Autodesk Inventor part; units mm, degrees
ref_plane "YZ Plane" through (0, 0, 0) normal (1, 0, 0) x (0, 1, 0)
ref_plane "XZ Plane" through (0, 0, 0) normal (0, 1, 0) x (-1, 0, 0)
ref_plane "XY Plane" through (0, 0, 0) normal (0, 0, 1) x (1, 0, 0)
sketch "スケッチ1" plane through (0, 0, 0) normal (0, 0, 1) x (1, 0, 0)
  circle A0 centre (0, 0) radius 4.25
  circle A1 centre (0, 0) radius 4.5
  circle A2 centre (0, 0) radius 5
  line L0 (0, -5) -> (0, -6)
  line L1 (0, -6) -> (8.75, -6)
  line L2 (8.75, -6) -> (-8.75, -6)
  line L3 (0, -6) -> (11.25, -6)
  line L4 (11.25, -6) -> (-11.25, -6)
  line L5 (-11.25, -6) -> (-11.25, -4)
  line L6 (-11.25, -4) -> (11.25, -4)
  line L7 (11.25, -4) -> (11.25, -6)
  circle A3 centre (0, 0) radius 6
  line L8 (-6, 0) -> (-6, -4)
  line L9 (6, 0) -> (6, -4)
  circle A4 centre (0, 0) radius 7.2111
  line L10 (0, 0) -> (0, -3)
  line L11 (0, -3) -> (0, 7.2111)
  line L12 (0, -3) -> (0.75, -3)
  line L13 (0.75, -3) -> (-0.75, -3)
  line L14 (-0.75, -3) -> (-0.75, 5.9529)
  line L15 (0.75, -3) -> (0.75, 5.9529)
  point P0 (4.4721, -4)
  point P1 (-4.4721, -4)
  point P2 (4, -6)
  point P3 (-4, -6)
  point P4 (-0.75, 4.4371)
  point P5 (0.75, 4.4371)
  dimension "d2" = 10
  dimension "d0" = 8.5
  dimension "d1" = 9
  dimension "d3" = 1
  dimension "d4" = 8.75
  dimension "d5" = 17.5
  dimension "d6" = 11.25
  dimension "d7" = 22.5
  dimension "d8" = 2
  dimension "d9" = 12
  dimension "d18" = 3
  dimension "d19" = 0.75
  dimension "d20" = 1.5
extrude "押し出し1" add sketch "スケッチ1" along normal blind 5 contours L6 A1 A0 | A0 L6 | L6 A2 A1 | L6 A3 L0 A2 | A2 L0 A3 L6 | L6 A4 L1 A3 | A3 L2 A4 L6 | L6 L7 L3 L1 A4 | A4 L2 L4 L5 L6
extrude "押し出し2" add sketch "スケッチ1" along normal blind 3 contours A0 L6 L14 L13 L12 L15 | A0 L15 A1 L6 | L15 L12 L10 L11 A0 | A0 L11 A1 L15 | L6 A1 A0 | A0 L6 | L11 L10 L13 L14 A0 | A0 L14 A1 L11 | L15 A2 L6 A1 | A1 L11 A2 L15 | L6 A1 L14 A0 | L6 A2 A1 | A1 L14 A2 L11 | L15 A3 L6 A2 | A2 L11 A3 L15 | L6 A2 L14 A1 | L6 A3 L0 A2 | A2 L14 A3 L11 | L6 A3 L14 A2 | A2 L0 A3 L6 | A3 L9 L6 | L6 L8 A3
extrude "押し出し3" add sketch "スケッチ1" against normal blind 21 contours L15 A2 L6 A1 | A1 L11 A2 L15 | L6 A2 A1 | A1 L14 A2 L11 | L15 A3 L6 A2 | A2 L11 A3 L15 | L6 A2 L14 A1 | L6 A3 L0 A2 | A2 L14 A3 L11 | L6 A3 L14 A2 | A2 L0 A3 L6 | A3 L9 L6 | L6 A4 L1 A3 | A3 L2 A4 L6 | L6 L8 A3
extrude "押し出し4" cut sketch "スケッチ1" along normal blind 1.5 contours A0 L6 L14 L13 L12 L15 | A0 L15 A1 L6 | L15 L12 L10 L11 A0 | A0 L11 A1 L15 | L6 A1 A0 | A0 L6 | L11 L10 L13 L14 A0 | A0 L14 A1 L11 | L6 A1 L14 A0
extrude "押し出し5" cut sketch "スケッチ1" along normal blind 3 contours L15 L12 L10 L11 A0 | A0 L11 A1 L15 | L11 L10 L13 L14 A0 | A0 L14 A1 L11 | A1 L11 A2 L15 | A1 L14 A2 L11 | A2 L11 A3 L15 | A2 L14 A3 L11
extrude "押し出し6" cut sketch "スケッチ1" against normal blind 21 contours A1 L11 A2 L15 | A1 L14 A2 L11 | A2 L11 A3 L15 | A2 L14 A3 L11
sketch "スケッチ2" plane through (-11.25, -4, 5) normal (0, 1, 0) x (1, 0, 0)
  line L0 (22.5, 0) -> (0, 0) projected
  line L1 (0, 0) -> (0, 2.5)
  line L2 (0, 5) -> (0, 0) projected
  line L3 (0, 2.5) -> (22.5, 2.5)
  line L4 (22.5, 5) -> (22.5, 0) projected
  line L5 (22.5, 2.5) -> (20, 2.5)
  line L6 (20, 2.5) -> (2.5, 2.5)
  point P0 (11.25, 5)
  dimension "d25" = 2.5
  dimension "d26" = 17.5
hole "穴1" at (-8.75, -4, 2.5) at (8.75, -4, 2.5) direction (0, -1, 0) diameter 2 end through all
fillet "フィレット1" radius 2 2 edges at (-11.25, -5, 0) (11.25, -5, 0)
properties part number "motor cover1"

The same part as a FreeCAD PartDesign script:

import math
import FreeCAD as App
import Part
import Sketcher

V = App.Vector
Q = App.Units.Quantity


def edges_at(feature, points):
    """Names of the edges that pass closest to the given points."""
    edges = feature.Shape.Edges
    near = lambda p: min(range(len(edges)), key=lambda i: edges[i].distToShape(Part.Vertex(*p))[0])
    return sorted({f"Edge{near(p) + 1}" for p in points})

doc = App.newDocument("Part")
body = doc.addObject("PartDesign::Body", "Body")

# Sketch on XY plane
sketch1 = body.newObject("Sketcher::SketchObject", "Sketch")
sketch1.AttachmentSupport = (doc.getObject("XY_Plane"), [""])
sketch1.MapMode = "FlatFace"
sketch1.addGeometry([
    Part.LineSegment(V(-11.25, -4, 0), V(-11.25, -6, 0)),
    Part.LineSegment(V(-11.25, -6, 0), V(11.25, -6, 0)),
    Part.LineSegment(V(11.25, -6, 0), V(11.25, -4, 0)),
    Part.LineSegment(V(11.25, -4, 0), V(-11.25, -4, 0)),
], False)
sketch1.addConstraint([
    Sketcher.Constraint("Coincident", 0, 2, 1, 1),
    Sketcher.Constraint("Coincident", 1, 2, 2, 1),
    Sketcher.Constraint("Coincident", 2, 2, 3, 1),
    Sketcher.Constraint("Coincident", 3, 2, 0, 1),
    Sketcher.Constraint("Vertical", 0),
    Sketcher.Constraint("Horizontal", 1),
    Sketcher.Constraint("Vertical", 2),
    Sketcher.Constraint("Horizontal", 3),
    Sketcher.Constraint("DistanceY", 0, 2, 0, 1, Q("2 mm")),
    Sketcher.Constraint("DistanceX", 1, 1, 1, 2, Q("22.5 mm")),
    Sketcher.Constraint("DistanceX", 0, 2, -1, 1, Q("11.25 mm")),
    Sketcher.Constraint("DistanceY", 0, 2, -1, 1, Q("6 mm")),
])
pad1 = body.newObject("PartDesign::Pad", "Pad")
pad1.Profile = sketch1
pad1.Length = 5

# Sketch on XY plane
sketch2 = body.newObject("Sketcher::SketchObject", "Sketch001")
sketch2.AttachmentSupport = (doc.getObject("XY_Plane"), [""])
sketch2.MapMode = "FlatFace"
sketch2.addGeometry([
    Part.ArcOfCircle(Part.Circle(V(0, 0, 0), V(0, 0, 1), 6), math.radians(0), math.radians(180)),  # 0
    Part.LineSegment(V(-6, 0, 0), V(-6, -4, 0)),  # 1
    Part.LineSegment(V(-6, -4, 0), V(-4.472136, -4, 0)),  # 2
    Part.ArcOfCircle(Part.Circle(V(0, 0, 0), V(0, 0, 1), 6), math.radians(-138.189685), math.radians(-41.810315)),  # 3
    Part.LineSegment(V(4.472136, -4, 0), V(6, -4, 0)),  # 4
    Part.LineSegment(V(6, -4, 0), V(6, 0, 0)),  # 5
], False)
sketch2.addConstraint([
    Sketcher.Constraint("Tangent", 0, 2, 1, 1),
    Sketcher.Constraint("Coincident", 1, 2, 2, 1),
    Sketcher.Constraint("Coincident", 2, 2, 3, 1),
    Sketcher.Constraint("Coincident", 3, 2, 4, 1),
    Sketcher.Constraint("Coincident", 4, 2, 5, 1),
    Sketcher.Constraint("Tangent", 5, 2, 0, 1),
    Sketcher.Constraint("Vertical", 1),
    Sketcher.Constraint("Horizontal", 2),
    Sketcher.Constraint("Horizontal", 4),
    Sketcher.Constraint("Vertical", 5),
    Sketcher.Constraint("Coincident", 0, 3, -1, 1),
    Sketcher.Constraint("Coincident", 3, 3, -1, 1),
    Sketcher.Constraint("Equal", 0, 3),
    Sketcher.Constraint("Horizontal", 2, 2, 3, 2),
    Sketcher.Constraint("Radius", 0, Q("6 mm")),
    Sketcher.Constraint("DistanceY", 1, 2, 1, 1, Q("4 mm")),
])
pad2 = body.newObject("PartDesign::Pad", "Pad001")
pad2.Profile = sketch2
pad2.Length = 3

# Sketch on XY plane
sketch3 = body.newObject("Sketcher::SketchObject", "Sketch002")
sketch3.AttachmentSupport = (doc.getObject("XY_Plane"), [""])
sketch3.MapMode = "FlatFace"
sketch3.addGeometry([
    Part.ArcOfCircle(Part.Circle(V(0, 0, 0), V(0, 0, 1), 6), math.radians(0), math.radians(180)),  # 0
    Part.LineSegment(V(-6, 0, 0), V(-6, -4, 0)),  # 1
    Part.ArcOfCircle(Part.Circle(V(0, 0, 0), V(0, 0, 1), 7.2111), math.radians(-146.309932), math.radians(-123.690037)),  # 2
    Part.LineSegment(V(-3.999995, -6, 0), V(3.999995, -6, 0)),  # 3
    Part.ArcOfCircle(Part.Circle(V(0, 0, 0), V(0, 0, 1), 7.2111), math.radians(-56.309963), math.radians(-33.690068)),  # 4
    Part.LineSegment(V(6, -4, 0), V(6, 0, 0)),  # 5
    Part.Circle(V(0, 0, 0), V(0, 0, 1), 4.5),  # 6
], False)
sketch3.addConstraint([
    Sketcher.Constraint("Tangent", 0, 2, 1, 1),
    Sketcher.Constraint("Coincident", 1, 2, 2, 1),
    Sketcher.Constraint("Coincident", 2, 2, 3, 1),
    Sketcher.Constraint("Coincident", 3, 2, 4, 1),
    Sketcher.Constraint("Coincident", 4, 2, 5, 1),
    Sketcher.Constraint("Tangent", 5, 2, 0, 1),
    Sketcher.Constraint("Vertical", 1),
    Sketcher.Constraint("Horizontal", 3),
    Sketcher.Constraint("Vertical", 5),
    Sketcher.Constraint("Coincident", 0, 3, -1, 1),
    Sketcher.Constraint("Coincident", 2, 3, -1, 1),
    Sketcher.Constraint("Coincident", 4, 3, -1, 1),
    Sketcher.Constraint("Coincident", 6, 3, -1, 1),
    Sketcher.Constraint("Equal", 2, 4),
    Sketcher.Constraint("Diameter", 6, Q("9 mm")),
    Sketcher.Constraint("Radius", 0, Q("6 mm")),
    Sketcher.Constraint("DistanceX", 1, 2, 2, 2, Q("2 mm")),
    Sketcher.Constraint("DistanceY", 2, 2, 1, 2, Q("2 mm")),
])
pad3 = body.newObject("PartDesign::Pad", "Pad002")
pad3.Profile = sketch3
pad3.Length = 21
pad3.Reversed = True

# Sketch on XY plane
sketch4 = body.newObject("Sketcher::SketchObject", "Sketch003")
sketch4.AttachmentSupport = (doc.getObject("XY_Plane"), [""])
sketch4.MapMode = "FlatFace"
sketch4.addGeometry(Part.Circle(V(0, 0, 0), V(0, 0, 1), 4.5), False)
sketch4.addConstraint([
    Sketcher.Constraint("Coincident", 0, 3, -1, 1),
    Sketcher.Constraint("Diameter", 0, Q("9 mm")),
])
pocket1 = body.newObject("PartDesign::Pocket", "Pocket")
pocket1.Profile = sketch4
pocket1.Length = 1.5
pocket1.Reversed = True

# Sketch on XY plane
sketch5 = body.newObject("Sketcher::SketchObject", "Sketch004")
sketch5.AttachmentSupport = (doc.getObject("XY_Plane"), [""])
sketch5.MapMode = "FlatFace"
sketch5.addGeometry([
    Part.LineSegment(V(0.75, -3, 0), V(0.75, 5.9529, 0)),
    Part.ArcOfCircle(Part.Circle(V(0, 0, 0), V(0, 0, 1), 6), math.radians(82.819196), math.radians(97.180804)),
    Part.LineSegment(V(-0.75, 5.9529, 0), V(-0.75, -3, 0)),
    Part.LineSegment(V(-0.75, -3, 0), V(0.75, -3, 0)),
], False)
sketch5.addConstraint([
    Sketcher.Constraint("Coincident", 0, 2, 1, 1),
    Sketcher.Constraint("Coincident", 1, 2, 2, 1),
    Sketcher.Constraint("Coincident", 2, 2, 3, 1),
    Sketcher.Constraint("Coincident", 3, 2, 0, 1),
    Sketcher.Constraint("Vertical", 0),
    Sketcher.Constraint("Vertical", 2),
    Sketcher.Constraint("Horizontal", 3),
    Sketcher.Constraint("Coincident", 1, 3, -1, 1),
    Sketcher.Constraint("Horizontal", 0, 2, 1, 2),
    Sketcher.Constraint("Radius", 1, Q("6 mm")),
    Sketcher.Constraint("DistanceX", 3, 1, 3, 2, Q("1.5 mm")),
    Sketcher.Constraint("DistanceY", 2, 2, -1, 1, Q("3 mm")),
])
pocket2 = body.newObject("PartDesign::Pocket", "Pocket001")
pocket2.Profile = sketch5
pocket2.Length = 3
pocket2.Reversed = True

# Sketch on XY plane
sketch6 = body.newObject("Sketcher::SketchObject", "Sketch005")
sketch6.AttachmentSupport = (doc.getObject("XY_Plane"), [""])
sketch6.MapMode = "FlatFace"
sketch6.addGeometry([
    Part.LineSegment(V(0.75, 4.43706, 0), V(0.75, 5.9529, 0)),
    Part.ArcOfCircle(Part.Circle(V(0, 0, 0), V(0, 0, 1), 6), math.radians(82.819196), math.radians(97.180804)),
    Part.LineSegment(V(-0.75, 5.9529, 0), V(-0.75, 4.43706, 0)),
    Part.ArcOfCircle(Part.Circle(V(0, 0, 0), V(0, 0, 1), 4.5), math.radians(80.405932), math.radians(99.594068)),
], False)
sketch6.addConstraint([
    Sketcher.Constraint("Coincident", 0, 2, 1, 1),
    Sketcher.Constraint("Coincident", 1, 2, 2, 1),
    Sketcher.Constraint("Coincident", 2, 2, 3, 2),
    Sketcher.Constraint("Coincident", 3, 1, 0, 1),
    Sketcher.Constraint("Vertical", 0),
    Sketcher.Constraint("Vertical", 2),
    Sketcher.Constraint("Coincident", 1, 3, -1, 1),
    Sketcher.Constraint("Coincident", 3, 3, -1, 1),
    Sketcher.Constraint("Horizontal", 0, 2, 1, 2),
    Sketcher.Constraint("Radius", 1, Q("6 mm")),
    Sketcher.Constraint("Radius", 3, Q("4.5 mm")),
    Sketcher.Constraint("DistanceX", 1, 2, 0, 2, Q("1.5 mm")),
])
pocket3 = body.newObject("PartDesign::Pocket", "Pocket002")
pocket3.Profile = sketch6
pocket3.Length = 21

# Sketch on XZ plane
sketch7 = body.newObject("Sketcher::SketchObject", "Sketch006")
sketch7.AttachmentSupport = (doc.getObject("XZ_Plane"), [""])
sketch7.MapMode = "FlatFace"
sketch7.AttachmentOffset = App.Placement(V(0, 0, 4), App.Rotation())
sketch7.addGeometry([
    Part.Circle(V(-8.75, 2.5, 0), V(0, 0, 1), 1),
    Part.Circle(V(8.75, 2.5, 0), V(0, 0, 1), 1),
], False)
sketch7.addConstraint([
    Sketcher.Constraint("Equal", 0, 1),
    Sketcher.Constraint("Symmetric", 0, 3, 1, 3, -2),
    Sketcher.Constraint("Diameter", 0, Q("2 mm")),
    Sketcher.Constraint("DistanceY", -1, 1, 0, 3, Q("2.5 mm")),
    Sketcher.Constraint("DistanceX", 0, 3, 1, 3, Q("17.5 mm")),
])
doc.recompute()
hole = body.newObject("PartDesign::Hole", "Hole")
hole.Profile = sketch7
hole.ThreadType = "None"
hole.Diameter = 2
hole.DepthType = "ThroughAll"
hole.Reversed = True
doc.recompute()

fillet = body.newObject("PartDesign::Fillet", "Fillet")
fillet.Base = (hole, edges_at(hole, [(-11.25, -5, 0), (11.25, -5, 0)]))
fillet.Radius = 2

doc.recompute()
